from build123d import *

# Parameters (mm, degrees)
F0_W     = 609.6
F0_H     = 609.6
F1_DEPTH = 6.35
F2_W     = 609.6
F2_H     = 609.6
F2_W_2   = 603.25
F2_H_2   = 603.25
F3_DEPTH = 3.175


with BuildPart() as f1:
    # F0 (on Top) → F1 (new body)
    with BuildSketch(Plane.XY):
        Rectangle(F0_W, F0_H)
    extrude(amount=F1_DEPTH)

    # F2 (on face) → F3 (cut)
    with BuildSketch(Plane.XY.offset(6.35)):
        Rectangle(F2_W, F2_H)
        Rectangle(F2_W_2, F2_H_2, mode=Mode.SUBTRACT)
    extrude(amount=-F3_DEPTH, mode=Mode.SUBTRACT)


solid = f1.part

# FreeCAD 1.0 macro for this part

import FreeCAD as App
import Part
import Sketcher

V = App.Vector
Q = App.Units.Quantity

doc = App.newDocument("Part")
body = doc.addObject("PartDesign::Body", "Body")

sketch1 = doc.addObject("Sketcher::SketchObject", "Sketch")
body.addObject(sketch1)
sketch1.AttachmentSupport = (doc.XY_Plane, [""])
sketch1.MapMode = "FlatFace"
sketch1.addGeometry(Part.LineSegment(V(-305, 305, 0), V(-305, -305, 0)), False)
sketch1.addGeometry(Part.LineSegment(V(-305, -305, 0), V(305, -305, 0)), False)
sketch1.addGeometry(Part.LineSegment(V(305, -305, 0), V(305, 305, 0)), False)
sketch1.addGeometry(Part.LineSegment(V(305, 305, 0), V(-305, 305, 0)), False)
sketch1.addConstraint(Sketcher.Constraint("Coincident", 0, 2, 1, 1))
sketch1.addConstraint(Sketcher.Constraint("Coincident", 1, 2, 2, 1))
sketch1.addConstraint(Sketcher.Constraint("Coincident", 2, 2, 3, 1))
sketch1.addConstraint(Sketcher.Constraint("Coincident", 3, 2, 0, 1))
sketch1.addConstraint(Sketcher.Constraint("Vertical", 0))
sketch1.addConstraint(Sketcher.Constraint("Horizontal", 1))
sketch1.addConstraint(Sketcher.Constraint("Vertical", 2))
sketch1.addConstraint(Sketcher.Constraint("Horizontal", 3))
sketch1.addConstraint(Sketcher.Constraint("Symmetric", 0, 2, 2, 2, -1, 1))
sketch1.addConstraint(Sketcher.Constraint("Equal", 3, 0))
sketch1.addConstraint(Sketcher.Constraint("DistanceX", 1, 1, 1, 2, Q("24 in")))
pad1 = doc.addObject("PartDesign::Pad", "Pad")
body.addObject(pad1)
pad1.Profile = sketch1
pad1.Length = Q("0.25 in")

sketch2 = doc.addObject("Sketcher::SketchObject", "Sketch001")
body.addObject(sketch2)
sketch2.AttachmentSupport = (doc.XY_Plane, [""])
sketch2.MapMode = "FlatFace"
sketch2.AttachmentOffset = App.Placement(V(0, 0, 0.25 * 25.4), App.Rotation())
sketch2.addGeometry(Part.LineSegment(V(-305, 305, 0), V(-305, -305, 0)), False)
sketch2.addGeometry(Part.LineSegment(V(-305, -305, 0), V(305, -305, 0)), False)
sketch2.addGeometry(Part.LineSegment(V(305, -305, 0), V(305, 305, 0)), False)
sketch2.addGeometry(Part.LineSegment(V(305, 305, 0), V(-305, 305, 0)), False)
sketch2.addGeometry(Part.LineSegment(V(302, -302, 0), V(-302, -302, 0)), False)
sketch2.addGeometry(Part.LineSegment(V(-302, -302, 0), V(-302, 302, 0)), False)
sketch2.addGeometry(Part.LineSegment(V(-302, 302, 0), V(302, 302, 0)), False)
sketch2.addGeometry(Part.LineSegment(V(302, 302, 0), V(302, -302, 0)), False)
sketch2.addConstraint(Sketcher.Constraint("Coincident", 0, 2, 1, 1))
sketch2.addConstraint(Sketcher.Constraint("Coincident", 1, 2, 2, 1))
sketch2.addConstraint(Sketcher.Constraint("Coincident", 2, 2, 3, 1))
sketch2.addConstraint(Sketcher.Constraint("Coincident", 3, 2, 0, 1))
sketch2.addConstraint(Sketcher.Constraint("Coincident", 4, 2, 5, 1))
sketch2.addConstraint(Sketcher.Constraint("Coincident", 5, 2, 6, 1))
sketch2.addConstraint(Sketcher.Constraint("Coincident", 6, 2, 7, 1))
sketch2.addConstraint(Sketcher.Constraint("Coincident", 7, 2, 4, 1))
sketch2.addConstraint(Sketcher.Constraint("Vertical", 0))
sketch2.addConstraint(Sketcher.Constraint("Horizontal", 1))
sketch2.addConstraint(Sketcher.Constraint("Vertical", 2))
sketch2.addConstraint(Sketcher.Constraint("Horizontal", 3))
sketch2.addConstraint(Sketcher.Constraint("Horizontal", 4))
sketch2.addConstraint(Sketcher.Constraint("Vertical", 5))
sketch2.addConstraint(Sketcher.Constraint("Horizontal", 6))
sketch2.addConstraint(Sketcher.Constraint("Vertical", 7))
sketch2.addConstraint(Sketcher.Constraint("Symmetric", 0, 2, 2, 2, -1, 1))
sketch2.addConstraint(Sketcher.Constraint("Symmetric", 4, 2, 6, 2, -1, 1))
sketch2.addConstraint(Sketcher.Constraint("Equal", 3, 0))
sketch2.addConstraint(Sketcher.Constraint("Equal", 6, 5))
sketch2.addConstraint(Sketcher.Constraint("DistanceX", 1, 1, 1, 2, Q("24 in")))
sketch2.addConstraint(Sketcher.Constraint("DistanceX", 4, 2, 4, 1, Q("23.75 in")))
pocket1 = doc.addObject("PartDesign::Pocket", "Pocket")
body.addObject(pocket1)
pocket1.Profile = sketch2
pocket1.Length = Q("0.125 in")

doc.recompute()
